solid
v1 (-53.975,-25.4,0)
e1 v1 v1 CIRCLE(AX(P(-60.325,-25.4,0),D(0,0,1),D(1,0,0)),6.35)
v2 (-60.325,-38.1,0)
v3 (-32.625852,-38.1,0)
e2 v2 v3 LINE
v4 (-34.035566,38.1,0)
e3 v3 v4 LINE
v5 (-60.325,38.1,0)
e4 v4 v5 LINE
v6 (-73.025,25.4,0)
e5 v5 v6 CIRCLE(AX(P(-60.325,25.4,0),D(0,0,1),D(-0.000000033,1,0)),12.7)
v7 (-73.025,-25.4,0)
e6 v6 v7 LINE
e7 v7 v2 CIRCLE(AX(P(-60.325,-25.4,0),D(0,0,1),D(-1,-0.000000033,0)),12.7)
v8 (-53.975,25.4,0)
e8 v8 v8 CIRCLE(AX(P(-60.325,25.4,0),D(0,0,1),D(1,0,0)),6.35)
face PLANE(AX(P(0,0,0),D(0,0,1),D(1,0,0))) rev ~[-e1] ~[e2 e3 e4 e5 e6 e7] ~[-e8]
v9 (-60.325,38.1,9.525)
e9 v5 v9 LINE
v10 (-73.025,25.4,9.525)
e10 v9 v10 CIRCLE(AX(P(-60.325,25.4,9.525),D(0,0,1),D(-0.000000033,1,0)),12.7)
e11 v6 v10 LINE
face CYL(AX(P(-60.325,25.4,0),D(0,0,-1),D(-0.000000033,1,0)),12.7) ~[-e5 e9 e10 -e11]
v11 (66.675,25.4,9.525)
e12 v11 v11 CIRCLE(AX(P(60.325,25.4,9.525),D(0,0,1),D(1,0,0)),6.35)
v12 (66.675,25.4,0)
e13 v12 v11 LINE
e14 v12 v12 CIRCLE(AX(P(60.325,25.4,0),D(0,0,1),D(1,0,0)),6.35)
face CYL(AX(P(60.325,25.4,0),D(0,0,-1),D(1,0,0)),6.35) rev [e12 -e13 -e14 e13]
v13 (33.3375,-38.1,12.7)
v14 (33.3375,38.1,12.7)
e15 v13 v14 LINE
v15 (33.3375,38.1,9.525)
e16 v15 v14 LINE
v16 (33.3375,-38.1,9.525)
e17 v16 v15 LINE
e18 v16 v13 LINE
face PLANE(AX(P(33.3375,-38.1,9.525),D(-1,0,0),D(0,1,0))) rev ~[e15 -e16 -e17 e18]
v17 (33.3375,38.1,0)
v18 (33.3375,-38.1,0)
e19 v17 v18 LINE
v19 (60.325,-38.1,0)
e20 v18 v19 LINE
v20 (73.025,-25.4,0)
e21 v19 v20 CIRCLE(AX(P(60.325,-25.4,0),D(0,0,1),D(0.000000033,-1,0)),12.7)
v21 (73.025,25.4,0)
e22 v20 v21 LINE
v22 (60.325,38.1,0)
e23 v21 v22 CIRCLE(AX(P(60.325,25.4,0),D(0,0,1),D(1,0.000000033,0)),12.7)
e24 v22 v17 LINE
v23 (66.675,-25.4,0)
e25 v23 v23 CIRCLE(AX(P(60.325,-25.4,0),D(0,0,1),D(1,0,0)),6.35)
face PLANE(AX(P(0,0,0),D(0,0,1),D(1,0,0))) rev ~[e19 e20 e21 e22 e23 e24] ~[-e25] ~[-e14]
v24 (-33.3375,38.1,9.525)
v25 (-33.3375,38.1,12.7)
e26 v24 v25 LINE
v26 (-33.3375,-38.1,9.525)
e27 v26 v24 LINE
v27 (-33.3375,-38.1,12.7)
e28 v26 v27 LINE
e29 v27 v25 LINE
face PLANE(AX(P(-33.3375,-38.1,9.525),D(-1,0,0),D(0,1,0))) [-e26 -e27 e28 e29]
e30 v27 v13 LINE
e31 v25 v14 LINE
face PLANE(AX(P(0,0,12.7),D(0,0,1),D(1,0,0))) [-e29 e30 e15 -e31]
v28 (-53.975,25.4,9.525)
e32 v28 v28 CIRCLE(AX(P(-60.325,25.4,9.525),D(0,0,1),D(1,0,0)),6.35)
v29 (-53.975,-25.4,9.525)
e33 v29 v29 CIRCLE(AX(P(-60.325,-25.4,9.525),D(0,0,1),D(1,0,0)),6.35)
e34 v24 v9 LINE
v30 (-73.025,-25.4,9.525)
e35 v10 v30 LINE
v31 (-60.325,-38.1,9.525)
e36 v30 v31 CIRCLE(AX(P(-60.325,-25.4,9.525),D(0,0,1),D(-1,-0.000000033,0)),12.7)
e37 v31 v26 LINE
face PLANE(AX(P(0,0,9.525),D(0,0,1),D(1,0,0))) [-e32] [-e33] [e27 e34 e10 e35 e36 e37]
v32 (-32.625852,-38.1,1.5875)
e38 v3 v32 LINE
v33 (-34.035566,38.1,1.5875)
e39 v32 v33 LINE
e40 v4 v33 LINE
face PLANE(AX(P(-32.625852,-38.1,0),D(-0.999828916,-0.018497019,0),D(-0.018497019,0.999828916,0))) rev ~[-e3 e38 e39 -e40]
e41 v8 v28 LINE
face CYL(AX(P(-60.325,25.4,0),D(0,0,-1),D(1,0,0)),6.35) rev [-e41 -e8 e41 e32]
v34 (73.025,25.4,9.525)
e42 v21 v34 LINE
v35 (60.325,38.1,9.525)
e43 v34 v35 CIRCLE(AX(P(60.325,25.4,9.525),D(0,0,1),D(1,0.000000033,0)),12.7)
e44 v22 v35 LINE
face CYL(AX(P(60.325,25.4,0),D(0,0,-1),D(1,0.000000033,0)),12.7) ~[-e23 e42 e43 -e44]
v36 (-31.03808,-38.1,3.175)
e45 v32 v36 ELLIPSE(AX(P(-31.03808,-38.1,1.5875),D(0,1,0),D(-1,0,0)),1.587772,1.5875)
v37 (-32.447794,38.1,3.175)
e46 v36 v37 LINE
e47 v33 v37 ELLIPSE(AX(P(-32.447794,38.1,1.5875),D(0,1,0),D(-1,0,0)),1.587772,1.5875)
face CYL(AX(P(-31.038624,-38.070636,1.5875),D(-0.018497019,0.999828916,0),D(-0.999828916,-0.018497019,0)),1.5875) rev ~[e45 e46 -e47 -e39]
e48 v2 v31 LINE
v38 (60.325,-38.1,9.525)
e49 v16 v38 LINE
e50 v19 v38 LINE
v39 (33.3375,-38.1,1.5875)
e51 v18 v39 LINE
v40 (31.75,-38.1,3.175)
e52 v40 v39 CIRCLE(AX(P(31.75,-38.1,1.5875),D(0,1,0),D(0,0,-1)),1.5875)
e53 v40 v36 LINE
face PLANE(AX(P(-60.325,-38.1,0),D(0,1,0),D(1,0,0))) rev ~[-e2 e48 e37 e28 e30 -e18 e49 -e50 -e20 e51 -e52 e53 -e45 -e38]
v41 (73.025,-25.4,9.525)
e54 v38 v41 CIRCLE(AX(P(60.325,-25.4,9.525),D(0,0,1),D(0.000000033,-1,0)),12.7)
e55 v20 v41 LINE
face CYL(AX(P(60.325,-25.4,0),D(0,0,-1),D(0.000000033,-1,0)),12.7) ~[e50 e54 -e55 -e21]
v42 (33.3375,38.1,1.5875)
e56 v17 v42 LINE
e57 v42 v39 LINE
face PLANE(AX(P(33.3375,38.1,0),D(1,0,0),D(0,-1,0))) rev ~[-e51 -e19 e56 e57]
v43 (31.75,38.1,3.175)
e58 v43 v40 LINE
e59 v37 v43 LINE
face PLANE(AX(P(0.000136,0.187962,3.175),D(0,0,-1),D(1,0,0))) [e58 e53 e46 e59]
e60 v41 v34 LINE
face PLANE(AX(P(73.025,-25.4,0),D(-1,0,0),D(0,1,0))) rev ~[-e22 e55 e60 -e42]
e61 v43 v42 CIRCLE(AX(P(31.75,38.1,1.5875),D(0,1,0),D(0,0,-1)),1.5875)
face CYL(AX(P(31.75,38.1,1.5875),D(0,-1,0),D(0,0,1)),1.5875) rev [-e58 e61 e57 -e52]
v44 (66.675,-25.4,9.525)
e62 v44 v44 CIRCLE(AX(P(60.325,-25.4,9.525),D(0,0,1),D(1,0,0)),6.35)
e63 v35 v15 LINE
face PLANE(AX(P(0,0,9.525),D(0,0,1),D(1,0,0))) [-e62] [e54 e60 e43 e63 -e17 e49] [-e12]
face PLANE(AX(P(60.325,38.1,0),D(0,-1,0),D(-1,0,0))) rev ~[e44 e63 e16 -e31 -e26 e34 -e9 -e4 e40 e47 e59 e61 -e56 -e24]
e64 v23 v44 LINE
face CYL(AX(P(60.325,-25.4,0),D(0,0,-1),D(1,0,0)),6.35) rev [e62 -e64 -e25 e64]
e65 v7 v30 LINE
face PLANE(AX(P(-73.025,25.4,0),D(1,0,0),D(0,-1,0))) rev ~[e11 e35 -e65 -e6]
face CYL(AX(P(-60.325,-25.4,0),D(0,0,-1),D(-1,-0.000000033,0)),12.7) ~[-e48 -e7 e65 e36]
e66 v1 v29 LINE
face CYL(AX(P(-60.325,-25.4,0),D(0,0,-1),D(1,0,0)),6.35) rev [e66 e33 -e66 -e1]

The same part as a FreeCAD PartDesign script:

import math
import FreeCAD as App
import Part
import Sketcher

V = App.Vector
Q = App.Units.Quantity


def edges_at(feature, points):
    """Names of the edges that pass closest to the given points."""
    edges = feature.Shape.Edges
    near = lambda p: min(range(len(edges)), key=lambda i: edges[i].distToShape(Part.Vertex(*p))[0])
    return sorted({f"Edge{near(p) + 1}" for p in points})

doc = App.newDocument("Part")
body = doc.addObject("PartDesign::Body", "Body")

sketch1 = body.newObject("Sketcher::SketchObject", "Sketch")
sketch1.AttachmentSupport = (doc.getObject("XY_Plane"), [""])
sketch1.MapMode = "FlatFace"
sketch1.addGeometry([
    Part.ArcOfCircle(Part.Circle(V(60, -25, 0), V(0, 0, 1), 13), math.radians(-90), math.radians(0)),
    Part.LineSegment(V(73, -25, 0), V(73, 25, 0)),
    Part.ArcOfCircle(Part.Circle(V(60, 25, 0), V(0, 0, 1), 13), math.radians(0), math.radians(90)),
    Part.LineSegment(V(60, 38, 0), V(-60, 38, 0)),
    Part.ArcOfCircle(Part.Circle(V(-60, 25, 0), V(0, 0, 1), 13), math.radians(90), math.radians(180)),
    Part.LineSegment(V(-73, 25, 0), V(-73, -25, 0)),
    Part.ArcOfCircle(Part.Circle(V(-60, -25, 0), V(0, 0, 1), 13), math.radians(-180), math.radians(-90)),
    Part.LineSegment(V(-60, -38, 0), V(60, -38, 0)),
    Part.Circle(V(-60, -25, 0), V(0, 0, 1), 6),
    Part.Circle(V(60, -25, 0), V(0, 0, 1), 6),
    Part.Circle(V(-60, 25, 0), V(0, 0, 1), 6),
    Part.Circle(V(60, 25, 0), V(0, 0, 1), 6),
], False)
sketch1.addConstraint([
    Sketcher.Constraint("Tangent", 0, 2, 1, 1),
    Sketcher.Constraint("Tangent", 1, 2, 2, 1),
    Sketcher.Constraint("Tangent", 2, 2, 3, 1),
    Sketcher.Constraint("Tangent", 3, 2, 4, 1),
    Sketcher.Constraint("Tangent", 4, 2, 5, 1),
    Sketcher.Constraint("Tangent", 5, 2, 6, 1),
    Sketcher.Constraint("Tangent", 6, 2, 7, 1),
    Sketcher.Constraint("Tangent", 7, 2, 0, 1),
    Sketcher.Constraint("Vertical", 1),
    Sketcher.Constraint("Horizontal", 3),
    Sketcher.Constraint("Vertical", 5),
    Sketcher.Constraint("Horizontal", 7),
    Sketcher.Constraint("Coincident", 8, 3, 6, 3),
    Sketcher.Constraint("Coincident", 9, 3, 0, 3),
    Sketcher.Constraint("Coincident", 10, 3, 4, 3),
    Sketcher.Constraint("Coincident", 11, 3, 2, 3),
    Sketcher.Constraint("Equal", 0, 2),
    Sketcher.Constraint("Equal", 2, 4),
    Sketcher.Constraint("Equal", 4, 6),
    Sketcher.Constraint("Equal", 8, 9),
    Sketcher.Constraint("Equal", 9, 10),
    Sketcher.Constraint("Equal", 10, 11),
    Sketcher.Constraint("Symmetric", 0, 3, 4, 3, -1, 1),
    Sketcher.Constraint("Diameter", 8, Q("0.5 in")),
    Sketcher.Constraint("Radius", 0, Q("0.5 in")),
    Sketcher.Constraint("DistanceY", 1, 1, 1, 2, Q("2 in")),
    Sketcher.Constraint("DistanceX", 3, 2, 3, 1, Q("4.75 in")),
])
pad1 = body.newObject("PartDesign::Pad", "Pad")
pad1.Profile = sketch1
pad1.Length = Q("0.375 in")

sketch2 = body.newObject("Sketcher::SketchObject", "Sketch001")
sketch2.AttachmentSupport = (doc.getObject("XY_Plane"), [""])
sketch2.MapMode = "FlatFace"
sketch2.AttachmentOffset = App.Placement(V(0, 0, 0.375 * 25.4), App.Rotation())
sketch2.addGeometry([
    Part.LineSegment(V(-33, 38, 0), V(-33, -38, 0)),
    Part.LineSegment(V(-33, -38, 0), V(33, -38, 0)),
    Part.LineSegment(V(33, -38, 0), V(33, 38, 0)),
    Part.LineSegment(V(33, 38, 0), V(-33, 38, 0)),
], False)
sketch2.addConstraint([
    Sketcher.Constraint("Coincident", 0, 2, 1, 1),
    Sketcher.Constraint("Coincident", 1, 2, 2, 1),
    Sketcher.Constraint("Coincident", 2, 2, 3, 1),
    Sketcher.Constraint("Coincident", 3, 2, 0, 1),
    Sketcher.Constraint("Vertical", 0),
    Sketcher.Constraint("Horizontal", 1),
    Sketcher.Constraint("Vertical", 2),
    Sketcher.Constraint("Horizontal", 3),
    Sketcher.Constraint("Symmetric", 0, 2, 2, 2, -1, 1),
    Sketcher.Constraint("DistanceY", 0, 2, 0, 1, Q("3 in")),
    Sketcher.Constraint("DistanceX", 1, 1, 1, 2, Q("2.625 in")),
])
pad2 = body.newObject("PartDesign::Pad", "Pad001")
pad2.Profile = sketch2
pad2.Length = Q("0.125 in")

sketch3 = body.newObject("Sketcher::SketchObject", "Sketch002")
sketch3.AttachmentSupport = (doc.getObject("XY_Plane"), [""])
sketch3.MapMode = "FlatFace"
sketch3.addGeometry([
    Part.LineSegment(V(33, 38, 0), V(33, -38, 0)),
    Part.LineSegment(V(33, -38, 0), V(-33, -38, 0)),
    Part.LineSegment(V(-33, -38, 0), V(-34, 38, 0)),
    Part.LineSegment(V(-34, 38, 0), V(33, 38, 0)),
], False)
sketch3.addConstraint([
    Sketcher.Constraint("Coincident", 0, 2, 1, 1),
    Sketcher.Constraint("Coincident", 1, 2, 2, 1),
    Sketcher.Constraint("Coincident", 2, 2, 3, 1),
    Sketcher.Constraint("Coincident", 3, 2, 0, 1),
    Sketcher.Constraint("Vertical", 0),
    Sketcher.Constraint("Horizontal", 1),
    Sketcher.Constraint("Horizontal", 3),
    Sketcher.Constraint("DistanceY", 0, 2, 0, 1, Q("3 in")),
    Sketcher.Constraint("DistanceY", 0, 2, -1, 1, Q("1.5 in")),
    Sketcher.Constraint("DistanceX", -1, 1, 0, 2, Q("1.3125 in")),
    Sketcher.Constraint("DistanceX", 1, 2, 1, 1, Q("65.963352 mm")),
    Sketcher.Constraint("Distance", 2, Q("76.213039 mm")),
])
pocket1 = body.newObject("PartDesign::Pocket", "Pocket")
pocket1.Profile = sketch3
pocket1.Length = Q("0.125 in")
pocket1.Reversed = True
doc.recompute()

fillet = body.newObject("PartDesign::Fillet", "Fillet")
fillet.Base = (pocket1, edges_at(pocket1, [(33.337, 0, 3.175), (-33.331, 0, 3.175)]))
fillet.Radius = Q("0.0625 in")

doc.recompute()
